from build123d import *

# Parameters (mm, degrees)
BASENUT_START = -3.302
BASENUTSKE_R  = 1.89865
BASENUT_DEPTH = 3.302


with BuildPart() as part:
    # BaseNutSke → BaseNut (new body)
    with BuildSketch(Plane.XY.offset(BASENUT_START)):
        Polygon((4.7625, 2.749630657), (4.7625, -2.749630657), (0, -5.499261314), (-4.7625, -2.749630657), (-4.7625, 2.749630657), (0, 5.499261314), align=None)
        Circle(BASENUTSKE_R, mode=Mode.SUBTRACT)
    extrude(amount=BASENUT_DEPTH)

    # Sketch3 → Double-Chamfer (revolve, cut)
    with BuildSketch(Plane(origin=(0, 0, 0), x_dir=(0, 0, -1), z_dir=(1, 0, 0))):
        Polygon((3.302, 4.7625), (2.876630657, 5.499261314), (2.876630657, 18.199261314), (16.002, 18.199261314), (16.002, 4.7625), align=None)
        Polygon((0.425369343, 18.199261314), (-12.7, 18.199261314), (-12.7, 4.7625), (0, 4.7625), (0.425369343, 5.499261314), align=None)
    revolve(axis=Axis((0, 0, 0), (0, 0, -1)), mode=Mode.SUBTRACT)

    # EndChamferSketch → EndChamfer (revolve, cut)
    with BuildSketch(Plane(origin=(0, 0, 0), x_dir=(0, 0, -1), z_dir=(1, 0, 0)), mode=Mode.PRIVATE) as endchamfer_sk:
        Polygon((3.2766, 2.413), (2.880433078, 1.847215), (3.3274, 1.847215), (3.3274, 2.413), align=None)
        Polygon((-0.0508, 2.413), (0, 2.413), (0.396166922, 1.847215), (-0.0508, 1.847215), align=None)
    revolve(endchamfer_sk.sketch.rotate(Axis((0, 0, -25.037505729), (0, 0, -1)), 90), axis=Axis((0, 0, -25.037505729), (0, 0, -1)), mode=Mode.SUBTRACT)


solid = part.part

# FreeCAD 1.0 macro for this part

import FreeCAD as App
import Part
import Sketcher
from FreeCAD import Vector
Q = App.Units.Quantity

doc = App.newDocument("Part")
body = doc.addObject("PartDesign::Body", "Body")

# Sketch on XY plane
sketch1 = body.newObject("Sketcher::SketchObject", "Sketch")
sketch1.AttachmentSupport = (doc.getObject("XY_Plane"), [""])
sketch1.MapMode = "FlatFace"
sketch1.AttachmentOffset = App.Placement(Vector(0, 0, -0.13 * 25.4), App.Rotation())
sketch1.addGeometry(Part.LineSegment(Vector(4.7625, -2.749631, 0), Vector(4.7625, 2.749631, 0)), False)
sketch1.addGeometry(Part.LineSegment(Vector(4.7625, 2.749631, 0), Vector(0, 5.499261, 0)), False)
sketch1.addGeometry(Part.LineSegment(Vector(0, 5.499261, 0), Vector(-4.7625, 2.749631, 0)), False)
sketch1.addGeometry(Part.LineSegment(Vector(-4.7625, 2.749631, 0), Vector(-4.7625, -2.749631, 0)), False)
sketch1.addGeometry(Part.LineSegment(Vector(-4.7625, -2.749631, 0), Vector(0, -5.499261, 0)), False)
sketch1.addGeometry(Part.LineSegment(Vector(0, -5.499261, 0), Vector(4.7625, -2.749631, 0)), False)
sketch1.addGeometry(Part.Circle(Vector(0, 0, 0), Vector(0, 0, 1), 1.89865), False)
sketch1.addConstraint(Sketcher.Constraint("Coincident", 0, 2, 1, 1))
sketch1.addConstraint(Sketcher.Constraint("Coincident", 1, 2, 2, 1))
sketch1.addConstraint(Sketcher.Constraint("Coincident", 2, 2, 3, 1))
sketch1.addConstraint(Sketcher.Constraint("Coincident", 3, 2, 4, 1))
sketch1.addConstraint(Sketcher.Constraint("Coincident", 4, 2, 5, 1))
sketch1.addConstraint(Sketcher.Constraint("Coincident", 5, 2, 0, 1))
sketch1.addConstraint(Sketcher.Constraint("Vertical", 0))
sketch1.addConstraint(Sketcher.Constraint("Vertical", 3))
sketch1.addConstraint(Sketcher.Constraint("Coincident", 6, 3, -1, 1))
sketch1.addConstraint(Sketcher.Constraint("Symmetric", 0, 2, 3, 2, -1, 1))
sketch1.addConstraint(Sketcher.Constraint("Symmetric", 1, 2, 4, 2, -1, 1))
sketch1.addConstraint(Sketcher.Constraint("PointOnObject", 1, 2, -2))
sketch1.addConstraint(Sketcher.Constraint("Parallel", 2, 5))
sketch1.addConstraint(Sketcher.Constraint("Horizontal", 0, 2, 2, 2))
sketch1.addConstraint(Sketcher.Constraint("Angle", 1, Q("150 deg")))
sketch1.addConstraint(Sketcher.Constraint("Diameter", 6, Q("0.1495 in")))
sketch1.addConstraint(Sketcher.Constraint("DistanceX", -1, 1, 0, 2, Q("0.1875 in")))
sketch1.addConstraint(Sketcher.Constraint("DistanceY", 0, 1, 0, 2, 5.499261))
pad1 = body.newObject("PartDesign::Pad", "Pad")
pad1.Profile = sketch1
pad1.Length = Q("0.13 in")

# Sketch on YZ plane
sketch2 = body.newObject("Sketcher::SketchObject", "Sketch001")
sketch2.AttachmentSupport = (doc.getObject("YZ_Plane"), [""])
sketch2.MapMode = "FlatFace"
sketch2.addGeometry(Part.LineSegment(Vector(5.499261, -2.876631, 0), Vector(4.7625, -3.302, 0)), False)
sketch2.addGeometry(Part.LineSegment(Vector(4.7625, -3.302, 0), Vector(4.7625, -16.002, 0)), False)
sketch2.addGeometry(Part.LineSegment(Vector(4.7625, -16.002, 0), Vector(18.199261, -16.002, 0)), False)
sketch2.addGeometry(Part.LineSegment(Vector(18.199261, -16.002, 0), Vector(18.199261, -2.876631, 0)), False)
sketch2.addGeometry(Part.LineSegment(Vector(18.199261, -2.876631, 0), Vector(5.499261, -2.876631, 0)), False)
sketch2.addGeometry(Part.LineSegment(Vector(18.199261, -0.425369, 0), Vector(18.199261, 12.7, 0)), False)
sketch2.addGeometry(Part.LineSegment(Vector(18.199261, 12.7, 0), Vector(4.7625, 12.7, 0)), False)
sketch2.addGeometry(Part.LineSegment(Vector(4.7625, 12.7, 0), Vector(4.7625, 0, 0)), False)
sketch2.addGeometry(Part.LineSegment(Vector(4.7625, 0, 0), Vector(5.499261, -0.425369, 0)), False)
sketch2.addGeometry(Part.LineSegment(Vector(5.499261, -0.425369, 0), Vector(18.199261, -0.425369, 0)), False)
sketch2.addConstraint(Sketcher.Constraint("Coincident", 0, 2, 1, 1))
sketch2.addConstraint(Sketcher.Constraint("Coincident", 1, 2, 2, 1))
sketch2.addConstraint(Sketcher.Constraint("Coincident", 2, 2, 3, 1))
sketch2.addConstraint(Sketcher.Constraint("Coincident", 3, 2, 4, 1))
sketch2.addConstraint(Sketcher.Constraint("Coincident", 4, 2, 0, 1))
sketch2.addConstraint(Sketcher.Constraint("Coincident", 5, 2, 6, 1))
sketch2.addConstraint(Sketcher.Constraint("Coincident", 6, 2, 7, 1))
sketch2.addConstraint(Sketcher.Constraint("Coincident", 7, 2, 8, 1))
sketch2.addConstraint(Sketcher.Constraint("Coincident", 8, 2, 9, 1))
sketch2.addConstraint(Sketcher.Constraint("Coincident", 9, 2, 5, 1))
sketch2.addConstraint(Sketcher.Constraint("Vertical", 1))
sketch2.addConstraint(Sketcher.Constraint("Horizontal", 2))
sketch2.addConstraint(Sketcher.Constraint("Vertical", 3))
sketch2.addConstraint(Sketcher.Constraint("Horizontal", 4))
sketch2.addConstraint(Sketcher.Constraint("Vertical", 5))
sketch2.addConstraint(Sketcher.Constraint("Horizontal", 6))
sketch2.addConstraint(Sketcher.Constraint("Vertical", 7))
sketch2.addConstraint(Sketcher.Constraint("Horizontal", 9))
sketch2.addConstraint(Sketcher.Constraint("PointOnObject", 7, 2, -1))
sketch2.addConstraint(Sketcher.Constraint("Vertical", 3, 2, 5, 2))
sketch2.addConstraint(Sketcher.Constraint("Vertical", 1, 2, 6, 2))
sketch2.addConstraint(Sketcher.Constraint("Vertical", 4, 2, 8, 2))
sketch2.addConstraint(Sketcher.Constraint("Equal", 9, 1))
sketch2.addConstraint(Sketcher.Constraint("Equal", 3, 5))
sketch2.addConstraint(Sketcher.Constraint("Equal", 1, 7))
sketch2.addConstraint(Sketcher.Constraint("DistanceX", 4, 2, 4, 1, Q("0.5 in")))
sketch2.addConstraint(Sketcher.Constraint("Angle", 0, Q("-150 deg")))
sketch2.addConstraint(Sketcher.Constraint("DistanceY", 0, 2, -1, 1, Q("0.13 in")))
sketch2.addConstraint(Sketcher.Constraint("DistanceX", -1, 1, 0, 2, Q("0.1875 in")))
sketch2.addConstraint(Sketcher.Constraint("DistanceX", 2, 1, 2, 2, 13.436761))
groove = body.newObject("PartDesign::Groove", "Groove")
groove.Profile = sketch2
groove.ReferenceAxis = (sketch2, ["V_Axis"])
groove.Angle = 360

# Sketch on YZ plane
sketch3 = body.newObject("Sketcher::SketchObject", "Sketch002")
sketch3.AttachmentSupport = (doc.getObject("YZ_Plane"), [""])
sketch3.MapMode = "FlatFace"
sketch3.addGeometry(Part.LineSegment(Vector(2.413, -3.2766, 0), Vector(1.847215, -2.880433, 0)), False)
sketch3.addGeometry(Part.LineSegment(Vector(1.847215, -2.880433, 0), Vector(1.847215, -3.3274, 0)), False)
sketch3.addGeometry(Part.LineSegment(Vector(1.847215, -3.3274, 0), Vector(2.413, -3.3274, 0)), False)
sketch3.addGeometry(Part.LineSegment(Vector(2.413, -3.3274, 0), Vector(2.413, -3.2766, 0)), False)
sketch3.addGeometry(Part.LineSegment(Vector(2.413, 0, 0), Vector(2.413, 0.0508, 0)), False)
sketch3.addGeometry(Part.LineSegment(Vector(2.413, 0.0508, 0), Vector(1.847215, 0.0508, 0)), False)
sketch3.addGeometry(Part.LineSegment(Vector(1.847215, 0.0508, 0), Vector(1.847215, -0.396167, 0)), False)
sketch3.addGeometry(Part.LineSegment(Vector(1.847215, -0.396167, 0), Vector(2.413, 0, 0)), False)
sketch3.addConstraint(Sketcher.Constraint("Coincident", 0, 2, 1, 1))
sketch3.addConstraint(Sketcher.Constraint("Coincident", 1, 2, 2, 1))
sketch3.addConstraint(Sketcher.Constraint("Coincident", 2, 2, 3, 1))
sketch3.addConstraint(Sketcher.Constraint("Coincident", 3, 2, 0, 1))
sketch3.addConstraint(Sketcher.Constraint("Coincident", 4, 2, 5, 1))
sketch3.addConstraint(Sketcher.Constraint("Coincident", 5, 2, 6, 1))
sketch3.addConstraint(Sketcher.Constraint("Coincident", 6, 2, 7, 1))
sketch3.addConstraint(Sketcher.Constraint("Coincident", 7, 2, 4, 1))
sketch3.addConstraint(Sketcher.Constraint("Vertical", 1))
sketch3.addConstraint(Sketcher.Constraint("Horizontal", 2))
sketch3.addConstraint(Sketcher.Constraint("Vertical", 3))
sketch3.addConstraint(Sketcher.Constraint("Vertical", 4))
sketch3.addConstraint(Sketcher.Constraint("Horizontal", 5))
sketch3.addConstraint(Sketcher.Constraint("Vertical", 6))
sketch3.addConstraint(Sketcher.Constraint("PointOnObject", 7, 2, -1))
sketch3.addConstraint(Sketcher.Constraint("Vertical", 3, 2, 4, 2))
sketch3.addConstraint(Sketcher.Constraint("Vertical", 1, 2, 5, 2))
sketch3.addConstraint(Sketcher.Constraint("Equal", 3, 4))
sketch3.addConstraint(Sketcher.Constraint("Equal", 1, 6))
sketch3.addConstraint(Sketcher.Constraint("Angle", 0, Q("145 deg")))
sketch3.addConstraint(Sketcher.Constraint("DistanceY", 3, 1, 3, 2, Q("0.002 in")))
sketch3.addConstraint(Sketcher.Constraint("DistanceY", 1, 2, -1, 1, Q("0.131 in")))
sketch3.addConstraint(Sketcher.Constraint("DistanceX", -1, 1, 2, 2, Q("0.095 in")))
sketch3.addConstraint(Sketcher.Constraint("DistanceX", 2, 1, 2, 2, 0.565785))
groove2 = body.newObject("PartDesign::Groove", "Groove001")
groove2.Profile = sketch3
groove2.ReferenceAxis = (sketch3, ["V_Axis"])
groove2.Angle = 360

doc.recompute()
